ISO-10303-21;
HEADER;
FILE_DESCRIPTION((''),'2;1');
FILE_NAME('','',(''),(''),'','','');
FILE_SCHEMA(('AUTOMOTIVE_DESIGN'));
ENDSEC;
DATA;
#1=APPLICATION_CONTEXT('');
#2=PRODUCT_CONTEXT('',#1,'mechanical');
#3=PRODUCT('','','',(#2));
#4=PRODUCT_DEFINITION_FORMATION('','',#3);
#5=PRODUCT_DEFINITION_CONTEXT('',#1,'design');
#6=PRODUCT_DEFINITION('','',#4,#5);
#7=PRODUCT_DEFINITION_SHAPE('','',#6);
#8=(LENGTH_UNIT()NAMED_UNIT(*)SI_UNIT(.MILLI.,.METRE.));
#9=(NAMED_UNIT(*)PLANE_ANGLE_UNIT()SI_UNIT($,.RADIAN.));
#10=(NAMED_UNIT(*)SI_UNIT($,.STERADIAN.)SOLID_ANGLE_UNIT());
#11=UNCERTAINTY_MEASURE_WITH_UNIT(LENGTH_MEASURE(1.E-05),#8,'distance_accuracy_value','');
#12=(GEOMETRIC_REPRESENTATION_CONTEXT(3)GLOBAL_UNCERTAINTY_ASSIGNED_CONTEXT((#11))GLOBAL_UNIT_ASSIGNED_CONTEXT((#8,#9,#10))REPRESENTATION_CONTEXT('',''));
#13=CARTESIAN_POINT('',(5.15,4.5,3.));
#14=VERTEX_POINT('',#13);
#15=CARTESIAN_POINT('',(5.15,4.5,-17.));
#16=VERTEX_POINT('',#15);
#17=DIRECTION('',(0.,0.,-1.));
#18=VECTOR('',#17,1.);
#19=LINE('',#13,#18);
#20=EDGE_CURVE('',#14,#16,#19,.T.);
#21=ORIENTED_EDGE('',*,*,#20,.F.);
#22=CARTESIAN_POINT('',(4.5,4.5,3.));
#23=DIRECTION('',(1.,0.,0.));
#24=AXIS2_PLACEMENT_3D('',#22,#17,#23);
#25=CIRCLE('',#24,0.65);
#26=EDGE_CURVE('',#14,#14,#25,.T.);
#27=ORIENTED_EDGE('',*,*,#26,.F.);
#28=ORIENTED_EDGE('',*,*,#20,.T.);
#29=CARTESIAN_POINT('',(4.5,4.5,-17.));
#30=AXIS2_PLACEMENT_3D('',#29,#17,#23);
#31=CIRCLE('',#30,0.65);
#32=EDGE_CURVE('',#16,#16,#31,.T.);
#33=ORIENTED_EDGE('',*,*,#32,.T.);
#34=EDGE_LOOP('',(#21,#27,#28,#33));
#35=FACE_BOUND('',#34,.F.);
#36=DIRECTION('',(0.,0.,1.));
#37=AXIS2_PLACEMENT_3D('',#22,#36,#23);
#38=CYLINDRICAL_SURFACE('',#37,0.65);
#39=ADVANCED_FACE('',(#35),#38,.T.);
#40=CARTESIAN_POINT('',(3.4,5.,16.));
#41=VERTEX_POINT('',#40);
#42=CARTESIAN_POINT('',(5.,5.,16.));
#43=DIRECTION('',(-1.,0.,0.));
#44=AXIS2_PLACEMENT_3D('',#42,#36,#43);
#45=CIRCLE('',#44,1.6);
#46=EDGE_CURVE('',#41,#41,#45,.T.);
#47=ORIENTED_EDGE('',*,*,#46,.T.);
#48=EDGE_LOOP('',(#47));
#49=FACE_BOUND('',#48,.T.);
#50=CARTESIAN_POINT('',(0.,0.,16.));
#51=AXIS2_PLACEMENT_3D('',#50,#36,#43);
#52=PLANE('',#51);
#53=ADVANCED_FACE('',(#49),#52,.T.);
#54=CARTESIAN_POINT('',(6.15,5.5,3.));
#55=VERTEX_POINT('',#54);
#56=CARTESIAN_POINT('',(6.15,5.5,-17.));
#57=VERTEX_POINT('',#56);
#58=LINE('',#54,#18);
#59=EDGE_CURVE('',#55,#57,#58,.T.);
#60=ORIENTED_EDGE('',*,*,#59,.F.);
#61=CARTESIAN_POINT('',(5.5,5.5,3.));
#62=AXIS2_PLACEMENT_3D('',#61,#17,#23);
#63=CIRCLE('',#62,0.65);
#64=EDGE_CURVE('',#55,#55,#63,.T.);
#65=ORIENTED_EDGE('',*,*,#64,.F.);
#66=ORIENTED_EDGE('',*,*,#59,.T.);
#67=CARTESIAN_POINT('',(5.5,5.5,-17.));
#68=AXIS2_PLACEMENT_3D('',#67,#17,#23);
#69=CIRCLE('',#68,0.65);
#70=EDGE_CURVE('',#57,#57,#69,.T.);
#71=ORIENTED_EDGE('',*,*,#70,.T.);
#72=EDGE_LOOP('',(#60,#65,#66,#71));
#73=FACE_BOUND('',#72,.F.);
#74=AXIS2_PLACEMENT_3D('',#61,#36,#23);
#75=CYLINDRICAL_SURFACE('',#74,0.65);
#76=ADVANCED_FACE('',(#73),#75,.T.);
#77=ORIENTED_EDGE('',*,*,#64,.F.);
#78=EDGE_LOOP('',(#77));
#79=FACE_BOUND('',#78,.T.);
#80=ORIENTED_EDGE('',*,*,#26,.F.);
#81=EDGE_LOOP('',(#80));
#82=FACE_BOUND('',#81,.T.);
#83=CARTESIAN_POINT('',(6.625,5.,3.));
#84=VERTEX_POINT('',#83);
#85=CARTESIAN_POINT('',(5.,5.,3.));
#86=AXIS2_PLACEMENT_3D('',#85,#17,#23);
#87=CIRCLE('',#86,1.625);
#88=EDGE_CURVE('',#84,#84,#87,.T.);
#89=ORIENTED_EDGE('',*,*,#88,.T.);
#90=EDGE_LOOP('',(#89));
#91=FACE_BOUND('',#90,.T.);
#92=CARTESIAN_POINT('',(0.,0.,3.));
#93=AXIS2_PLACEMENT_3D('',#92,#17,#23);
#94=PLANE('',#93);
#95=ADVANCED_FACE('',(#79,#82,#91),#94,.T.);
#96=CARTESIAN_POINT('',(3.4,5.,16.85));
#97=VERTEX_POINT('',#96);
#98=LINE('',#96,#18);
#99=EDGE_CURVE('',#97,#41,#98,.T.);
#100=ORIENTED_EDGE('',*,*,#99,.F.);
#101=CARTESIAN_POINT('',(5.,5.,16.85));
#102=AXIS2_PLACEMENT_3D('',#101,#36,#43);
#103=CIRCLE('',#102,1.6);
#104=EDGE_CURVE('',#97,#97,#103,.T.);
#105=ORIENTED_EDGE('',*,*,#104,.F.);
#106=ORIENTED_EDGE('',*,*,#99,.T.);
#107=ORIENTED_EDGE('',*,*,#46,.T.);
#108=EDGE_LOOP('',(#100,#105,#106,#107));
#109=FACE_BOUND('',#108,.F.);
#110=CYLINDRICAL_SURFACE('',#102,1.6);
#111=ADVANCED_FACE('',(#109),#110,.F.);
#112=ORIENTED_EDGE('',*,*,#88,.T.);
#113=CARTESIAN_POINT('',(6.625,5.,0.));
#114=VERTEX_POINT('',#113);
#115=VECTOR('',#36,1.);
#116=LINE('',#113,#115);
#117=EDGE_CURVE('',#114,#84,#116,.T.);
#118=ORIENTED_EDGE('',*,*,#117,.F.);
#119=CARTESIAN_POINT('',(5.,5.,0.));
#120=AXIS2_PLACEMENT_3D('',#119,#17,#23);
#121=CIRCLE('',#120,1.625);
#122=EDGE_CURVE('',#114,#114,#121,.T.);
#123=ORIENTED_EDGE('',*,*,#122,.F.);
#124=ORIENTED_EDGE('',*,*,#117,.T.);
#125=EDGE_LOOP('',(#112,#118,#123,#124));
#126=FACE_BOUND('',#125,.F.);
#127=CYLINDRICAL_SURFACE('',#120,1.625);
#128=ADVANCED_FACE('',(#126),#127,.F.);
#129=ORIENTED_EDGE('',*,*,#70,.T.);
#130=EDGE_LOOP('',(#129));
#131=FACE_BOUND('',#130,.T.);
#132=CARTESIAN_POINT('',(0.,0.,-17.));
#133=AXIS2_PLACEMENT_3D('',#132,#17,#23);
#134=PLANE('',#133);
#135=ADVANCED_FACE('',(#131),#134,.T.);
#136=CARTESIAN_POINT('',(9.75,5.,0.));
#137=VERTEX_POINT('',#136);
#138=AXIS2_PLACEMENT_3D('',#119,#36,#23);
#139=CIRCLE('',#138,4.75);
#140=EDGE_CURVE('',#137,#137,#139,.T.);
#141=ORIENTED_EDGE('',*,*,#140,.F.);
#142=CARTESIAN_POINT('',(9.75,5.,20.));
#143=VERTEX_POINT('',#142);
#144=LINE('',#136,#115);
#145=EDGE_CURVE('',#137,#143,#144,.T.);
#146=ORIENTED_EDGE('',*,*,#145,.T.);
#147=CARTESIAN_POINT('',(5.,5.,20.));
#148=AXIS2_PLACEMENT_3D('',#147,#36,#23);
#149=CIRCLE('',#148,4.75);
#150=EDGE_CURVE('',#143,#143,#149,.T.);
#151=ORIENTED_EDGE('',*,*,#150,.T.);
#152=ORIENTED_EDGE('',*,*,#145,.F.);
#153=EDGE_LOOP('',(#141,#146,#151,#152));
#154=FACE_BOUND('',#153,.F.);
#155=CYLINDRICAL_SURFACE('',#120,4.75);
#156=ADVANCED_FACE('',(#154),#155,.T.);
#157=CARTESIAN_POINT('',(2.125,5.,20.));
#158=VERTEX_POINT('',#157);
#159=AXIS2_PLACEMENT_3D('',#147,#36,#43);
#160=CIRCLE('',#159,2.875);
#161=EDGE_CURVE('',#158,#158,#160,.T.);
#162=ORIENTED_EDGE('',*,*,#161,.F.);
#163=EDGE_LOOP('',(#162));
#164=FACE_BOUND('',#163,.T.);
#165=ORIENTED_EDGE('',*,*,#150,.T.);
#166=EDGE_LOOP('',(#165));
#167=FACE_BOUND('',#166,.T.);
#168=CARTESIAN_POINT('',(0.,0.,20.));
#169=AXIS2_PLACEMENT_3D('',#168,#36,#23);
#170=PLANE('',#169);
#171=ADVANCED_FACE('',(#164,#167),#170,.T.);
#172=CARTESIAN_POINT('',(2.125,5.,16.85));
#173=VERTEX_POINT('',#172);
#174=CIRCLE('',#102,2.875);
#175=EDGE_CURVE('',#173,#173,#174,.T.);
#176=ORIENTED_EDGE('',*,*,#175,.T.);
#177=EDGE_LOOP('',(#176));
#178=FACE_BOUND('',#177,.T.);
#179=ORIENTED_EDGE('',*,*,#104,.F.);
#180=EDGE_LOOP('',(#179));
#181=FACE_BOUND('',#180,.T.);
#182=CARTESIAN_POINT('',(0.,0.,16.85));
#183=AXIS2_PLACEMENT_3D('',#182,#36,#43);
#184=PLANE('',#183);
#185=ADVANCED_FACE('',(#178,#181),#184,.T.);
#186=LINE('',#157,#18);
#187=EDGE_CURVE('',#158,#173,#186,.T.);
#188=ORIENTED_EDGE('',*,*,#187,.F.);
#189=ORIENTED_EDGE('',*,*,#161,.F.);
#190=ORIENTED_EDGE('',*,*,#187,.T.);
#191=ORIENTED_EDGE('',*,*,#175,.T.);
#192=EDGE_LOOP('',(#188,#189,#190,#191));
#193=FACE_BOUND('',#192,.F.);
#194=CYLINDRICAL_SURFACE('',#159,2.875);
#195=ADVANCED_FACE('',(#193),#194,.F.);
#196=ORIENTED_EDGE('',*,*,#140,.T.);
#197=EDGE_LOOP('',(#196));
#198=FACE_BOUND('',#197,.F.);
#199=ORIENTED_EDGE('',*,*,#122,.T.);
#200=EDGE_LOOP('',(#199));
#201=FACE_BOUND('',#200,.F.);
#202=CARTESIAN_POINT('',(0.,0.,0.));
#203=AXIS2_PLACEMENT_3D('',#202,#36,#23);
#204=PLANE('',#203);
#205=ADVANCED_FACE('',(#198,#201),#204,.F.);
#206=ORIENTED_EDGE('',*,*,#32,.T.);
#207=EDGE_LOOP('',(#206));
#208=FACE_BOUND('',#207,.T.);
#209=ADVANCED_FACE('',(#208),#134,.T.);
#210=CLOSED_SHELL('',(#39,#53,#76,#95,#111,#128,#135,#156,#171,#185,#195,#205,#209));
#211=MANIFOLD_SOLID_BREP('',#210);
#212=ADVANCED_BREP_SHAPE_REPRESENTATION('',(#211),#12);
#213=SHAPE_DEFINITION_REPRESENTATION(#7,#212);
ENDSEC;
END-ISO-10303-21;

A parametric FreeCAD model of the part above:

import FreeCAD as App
import Part
import Sketcher

doc = App.newDocument("Part")
body = doc.addObject("PartDesign::Body", "Body")

# Sketch on XY plane
sketch1 = body.newObject("Sketcher::SketchObject", "Sketch")
sketch1.AttachmentSupport = (doc.getObject("XY_Plane"), [""])
sketch1.MapMode = "FlatFace"
sketch1.addGeometry(Part.Circle(App.Vector(5, 5, 0), App.Vector(0, 0, 1), 4.75), False)
sketch1.addConstraint([
    Sketcher.Constraint("Diameter", 0, 9.5),
    Sketcher.Constraint("DistanceX", -1, 1, 0, 3, 5.0),
    Sketcher.Constraint("DistanceY", -1, 1, 0, 3, 5.0),
])
pad1 = body.newObject("PartDesign::Pad", "Pad")
pad1.Profile = sketch1
pad1.Length = 20

# Sketch on XY plane
sketch2 = body.newObject("Sketcher::SketchObject", "Sketch001")
sketch2.AttachmentSupport = (doc.getObject("XY_Plane"), [""])
sketch2.MapMode = "FlatFace"
sketch2.AttachmentOffset = App.Placement(App.Vector(0, 0, 20), App.Rotation())
sketch2.addGeometry(Part.Circle(App.Vector(5, 5, 0), App.Vector(0, 0, 1), 2.875), False)
sketch2.addConstraint([
    Sketcher.Constraint("Diameter", 0, 5.75),
    Sketcher.Constraint("DistanceX", -1, 1, 0, 3, 5.0),
    Sketcher.Constraint("DistanceY", -1, 1, 0, 3, 5.0),
])
pocket1 = body.newObject("PartDesign::Pocket", "Pocket")
pocket1.Profile = sketch2
pocket1.Length = 3.15

# Sketch on XY plane
sketch3 = body.newObject("Sketcher::SketchObject", "Sketch002")
sketch3.AttachmentSupport = (doc.getObject("XY_Plane"), [""])
sketch3.MapMode = "FlatFace"
sketch3.AttachmentOffset = App.Placement(App.Vector(0, 0, 16.85), App.Rotation())
sketch3.addGeometry(Part.Circle(App.Vector(5, 5, 0), App.Vector(0, 0, 1), 1.6), False)
sketch3.addConstraint([
    Sketcher.Constraint("Diameter", 0, 3.2),
    Sketcher.Constraint("DistanceX", -1, 1, 0, 3, 5.0),
    Sketcher.Constraint("DistanceY", -1, 1, 0, 3, 5.0),
])
pocket2 = body.newObject("PartDesign::Pocket", "Pocket001")
pocket2.Profile = sketch3
pocket2.Length = 0.85

# Sketch on XY plane
sketch4 = body.newObject("Sketcher::SketchObject", "Sketch003")
sketch4.AttachmentSupport = (doc.getObject("XY_Plane"), [""])
sketch4.MapMode = "FlatFace"
sketch4.addGeometry(Part.Circle(App.Vector(5, 5, 0), App.Vector(0, 0, 1), 1.625), False)
sketch4.addConstraint([
    Sketcher.Constraint("Diameter", 0, 3.25),
    Sketcher.Constraint("DistanceX", -1, 1, 0, 3, 5.0),
    Sketcher.Constraint("DistanceY", -1, 1, 0, 3, 5.0),
])
pocket3 = body.newObject("PartDesign::Pocket", "Pocket002")
pocket3.Profile = sketch4
pocket3.Length = 3
pocket3.Reversed = True

# Sketch on XY plane
sketch5 = body.newObject("Sketcher::SketchObject", "Sketch004")
sketch5.AttachmentSupport = (doc.getObject("XY_Plane"), [""])
sketch5.MapMode = "FlatFace"
sketch5.AttachmentOffset = App.Placement(App.Vector(0, 0, 3), App.Rotation())
sketch5.addGeometry(Part.Circle(App.Vector(4.5, 4.5, 0), App.Vector(0, 0, 1), 0.65), False)
sketch5.addConstraint([
    Sketcher.Constraint("Diameter", 0, 1.3),
    Sketcher.Constraint("DistanceX", -1, 1, 0, 3, 4.5),
    Sketcher.Constraint("DistanceY", -1, 1, 0, 3, 4.5),
])
pad2 = body.newObject("PartDesign::Pad", "Pad001")
pad2.Profile = sketch5
pad2.Length = 20
pad2.Reversed = True

# Sketch on XY plane
sketch6 = body.newObject("Sketcher::SketchObject", "Sketch005")
sketch6.AttachmentSupport = (doc.getObject("XY_Plane"), [""])
sketch6.MapMode = "FlatFace"
sketch6.AttachmentOffset = App.Placement(App.Vector(0, 0, 3), App.Rotation())
sketch6.addGeometry(Part.Circle(App.Vector(5.5, 5.5, 0), App.Vector(0, 0, 1), 0.65), False)
sketch6.addConstraint([
    Sketcher.Constraint("Diameter", 0, 1.3),
    Sketcher.Constraint("DistanceX", -1, 1, 0, 3, 5.5),
    Sketcher.Constraint("DistanceY", -1, 1, 0, 3, 5.5),
])
pad3 = body.newObject("PartDesign::Pad", "Pad002")
pad3.Profile = sketch6
pad3.Length = 20
pad3.Reversed = True

doc.recompute()
